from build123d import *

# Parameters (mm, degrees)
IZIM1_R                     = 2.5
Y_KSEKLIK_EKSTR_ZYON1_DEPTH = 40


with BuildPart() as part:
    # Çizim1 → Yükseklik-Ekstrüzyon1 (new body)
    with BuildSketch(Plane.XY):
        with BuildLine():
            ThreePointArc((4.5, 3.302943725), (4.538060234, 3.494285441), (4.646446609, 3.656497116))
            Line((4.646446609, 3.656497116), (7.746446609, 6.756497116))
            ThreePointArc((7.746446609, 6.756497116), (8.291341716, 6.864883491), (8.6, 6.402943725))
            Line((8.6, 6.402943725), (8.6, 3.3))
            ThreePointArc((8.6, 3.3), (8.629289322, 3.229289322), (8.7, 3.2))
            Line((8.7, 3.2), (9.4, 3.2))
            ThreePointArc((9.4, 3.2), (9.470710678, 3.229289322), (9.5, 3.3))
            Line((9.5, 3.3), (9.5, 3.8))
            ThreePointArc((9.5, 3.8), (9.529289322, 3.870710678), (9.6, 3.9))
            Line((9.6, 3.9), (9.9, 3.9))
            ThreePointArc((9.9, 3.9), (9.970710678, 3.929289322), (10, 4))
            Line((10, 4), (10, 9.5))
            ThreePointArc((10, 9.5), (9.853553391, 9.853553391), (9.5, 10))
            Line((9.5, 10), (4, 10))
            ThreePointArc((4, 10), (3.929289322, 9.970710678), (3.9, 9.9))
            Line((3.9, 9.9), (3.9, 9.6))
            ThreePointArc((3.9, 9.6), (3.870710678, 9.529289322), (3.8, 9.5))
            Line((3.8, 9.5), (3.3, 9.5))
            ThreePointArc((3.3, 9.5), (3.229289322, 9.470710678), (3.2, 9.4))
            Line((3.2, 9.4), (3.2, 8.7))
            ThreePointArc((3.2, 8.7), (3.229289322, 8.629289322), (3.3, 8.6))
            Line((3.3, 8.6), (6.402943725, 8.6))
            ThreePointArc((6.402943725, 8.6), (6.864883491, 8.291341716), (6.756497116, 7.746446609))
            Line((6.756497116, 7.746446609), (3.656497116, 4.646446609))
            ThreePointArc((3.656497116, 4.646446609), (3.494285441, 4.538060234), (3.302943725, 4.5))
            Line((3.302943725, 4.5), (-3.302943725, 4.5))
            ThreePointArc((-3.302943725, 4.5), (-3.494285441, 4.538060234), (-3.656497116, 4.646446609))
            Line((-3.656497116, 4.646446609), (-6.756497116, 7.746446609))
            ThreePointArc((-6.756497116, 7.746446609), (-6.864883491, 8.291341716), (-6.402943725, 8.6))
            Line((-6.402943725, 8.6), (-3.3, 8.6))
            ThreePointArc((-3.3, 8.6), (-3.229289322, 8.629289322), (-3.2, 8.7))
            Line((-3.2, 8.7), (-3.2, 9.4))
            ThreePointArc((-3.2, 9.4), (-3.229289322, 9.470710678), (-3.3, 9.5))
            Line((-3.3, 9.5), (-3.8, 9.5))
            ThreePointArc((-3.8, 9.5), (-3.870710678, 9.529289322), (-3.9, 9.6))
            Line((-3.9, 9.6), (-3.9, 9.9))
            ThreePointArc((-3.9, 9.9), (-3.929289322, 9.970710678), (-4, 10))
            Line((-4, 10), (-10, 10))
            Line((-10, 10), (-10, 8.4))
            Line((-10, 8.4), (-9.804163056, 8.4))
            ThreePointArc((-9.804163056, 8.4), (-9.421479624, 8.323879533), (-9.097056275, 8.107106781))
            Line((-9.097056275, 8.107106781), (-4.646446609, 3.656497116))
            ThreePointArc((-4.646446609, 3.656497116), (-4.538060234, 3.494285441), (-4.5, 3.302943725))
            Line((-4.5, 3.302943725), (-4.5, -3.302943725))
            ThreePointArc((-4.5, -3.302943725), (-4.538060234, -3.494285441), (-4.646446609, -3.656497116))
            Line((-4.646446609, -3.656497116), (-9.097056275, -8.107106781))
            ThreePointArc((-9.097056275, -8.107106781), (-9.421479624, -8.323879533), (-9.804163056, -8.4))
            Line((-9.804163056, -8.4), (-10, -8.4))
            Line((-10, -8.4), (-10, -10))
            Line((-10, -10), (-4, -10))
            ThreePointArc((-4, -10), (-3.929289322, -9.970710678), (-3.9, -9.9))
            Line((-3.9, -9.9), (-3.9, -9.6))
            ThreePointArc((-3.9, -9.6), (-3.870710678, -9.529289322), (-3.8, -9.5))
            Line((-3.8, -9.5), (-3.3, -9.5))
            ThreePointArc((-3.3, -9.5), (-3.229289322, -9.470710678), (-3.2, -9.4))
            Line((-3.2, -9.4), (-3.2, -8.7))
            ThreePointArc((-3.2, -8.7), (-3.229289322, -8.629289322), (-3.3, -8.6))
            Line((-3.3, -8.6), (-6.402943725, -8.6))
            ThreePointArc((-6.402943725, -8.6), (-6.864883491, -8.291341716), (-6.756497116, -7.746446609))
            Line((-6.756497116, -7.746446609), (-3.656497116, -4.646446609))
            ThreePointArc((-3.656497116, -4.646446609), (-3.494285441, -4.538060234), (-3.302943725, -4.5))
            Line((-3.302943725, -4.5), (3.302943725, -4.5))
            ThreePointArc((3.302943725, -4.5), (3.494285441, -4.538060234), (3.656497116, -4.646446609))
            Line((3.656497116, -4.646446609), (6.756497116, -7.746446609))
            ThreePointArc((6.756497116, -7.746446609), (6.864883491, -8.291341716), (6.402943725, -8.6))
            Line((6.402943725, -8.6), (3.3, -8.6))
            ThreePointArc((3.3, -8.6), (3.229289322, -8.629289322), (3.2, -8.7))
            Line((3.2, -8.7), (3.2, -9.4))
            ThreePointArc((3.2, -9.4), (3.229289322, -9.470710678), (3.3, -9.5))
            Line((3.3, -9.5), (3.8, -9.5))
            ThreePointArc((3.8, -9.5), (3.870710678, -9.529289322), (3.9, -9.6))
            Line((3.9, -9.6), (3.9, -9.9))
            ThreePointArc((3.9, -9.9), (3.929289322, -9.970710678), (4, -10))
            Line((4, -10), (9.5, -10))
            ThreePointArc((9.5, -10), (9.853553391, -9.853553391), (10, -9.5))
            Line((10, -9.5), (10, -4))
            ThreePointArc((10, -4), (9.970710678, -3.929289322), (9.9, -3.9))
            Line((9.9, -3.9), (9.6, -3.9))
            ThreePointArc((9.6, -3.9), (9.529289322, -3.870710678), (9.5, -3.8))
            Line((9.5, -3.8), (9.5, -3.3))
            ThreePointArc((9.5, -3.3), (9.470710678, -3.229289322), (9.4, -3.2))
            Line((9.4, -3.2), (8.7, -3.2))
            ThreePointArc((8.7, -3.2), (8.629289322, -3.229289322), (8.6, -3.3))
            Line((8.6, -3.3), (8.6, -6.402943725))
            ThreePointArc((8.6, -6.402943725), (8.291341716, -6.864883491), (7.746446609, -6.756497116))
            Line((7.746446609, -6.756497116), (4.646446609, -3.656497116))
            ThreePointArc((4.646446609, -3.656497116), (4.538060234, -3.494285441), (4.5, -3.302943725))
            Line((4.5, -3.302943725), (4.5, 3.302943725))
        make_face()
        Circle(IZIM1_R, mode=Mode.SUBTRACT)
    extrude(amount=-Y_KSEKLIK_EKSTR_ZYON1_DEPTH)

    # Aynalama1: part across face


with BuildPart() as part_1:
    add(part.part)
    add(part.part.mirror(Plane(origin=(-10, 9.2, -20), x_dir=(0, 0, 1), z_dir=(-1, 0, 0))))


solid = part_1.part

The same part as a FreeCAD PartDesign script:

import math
import FreeCAD as App
import Part
import Sketcher
from FreeCAD import Vector
Q = App.Units.Quantity

doc = App.newDocument("Part")
body = doc.addObject("PartDesign::Body", "Body")

sketch1 = body.newObject("Sketcher::SketchObject", "Sketch")
sketch1.AttachmentSupport = (doc.getObject("XY_Plane"), [""])
sketch1.MapMode = "FlatFace"
sketch1.addGeometry(Part.ArcOfCircle(Part.Circle(Vector(5, 3.3, 0), Vector(0, 0, 1), 0.5), math.radians(135), math.radians(180)), False)
sketch1.addGeometry(Part.LineSegment(Vector(4.65, 3.66, 0), Vector(7.75, 6.76, 0)), False)
sketch1.addGeometry(Part.ArcOfCircle(Part.Circle(Vector(8.1, 6.4, 0), Vector(0, 0, 1), 0.5), math.radians(0), math.radians(135)), False)
sketch1.addGeometry(Part.LineSegment(Vector(8.6, 6.4, 0), Vector(8.6, 3.3, 0)), False)
sketch1.addGeometry(Part.ArcOfCircle(Part.Circle(Vector(8.7, 3.3, 0), Vector(0, 0, 1), 0.1), math.radians(180), math.radians(270)), False)
sketch1.addGeometry(Part.LineSegment(Vector(8.7, 3.2, 0), Vector(9.4, 3.2, 0)), False)
sketch1.addGeometry(Part.ArcOfCircle(Part.Circle(Vector(9.4, 3.3, 0), Vector(0, 0, 1), 0.1), math.radians(-90), math.radians(0)), False)
sketch1.addGeometry(Part.LineSegment(Vector(9.5, 3.3, 0), Vector(9.5, 3.8, 0)), False)
sketch1.addGeometry(Part.ArcOfCircle(Part.Circle(Vector(9.6, 3.8, 0), Vector(0, 0, 1), 0.1), math.radians(90), math.radians(180)), False)
sketch1.addGeometry(Part.LineSegment(Vector(9.6, 3.9, 0), Vector(9.9, 3.9, 0)), False)
sketch1.addGeometry(Part.ArcOfCircle(Part.Circle(Vector(9.9, 4, 0), Vector(0, 0, 1), 0.1), math.radians(-90), math.radians(0)), False)
sketch1.addGeometry(Part.LineSegment(Vector(10, 4, 0), Vector(10, 9.5, 0)), False)
sketch1.addGeometry(Part.ArcOfCircle(Part.Circle(Vector(9.5, 9.5, 0), Vector(0, 0, 1), 0.5), math.radians(0), math.radians(90)), False)
sketch1.addGeometry(Part.LineSegment(Vector(9.5, 10, 0), Vector(4, 10, 0)), False)
sketch1.addGeometry(Part.ArcOfCircle(Part.Circle(Vector(4, 9.9, 0), Vector(0, 0, 1), 0.1), math.radians(90), math.radians(180)), False)
sketch1.addGeometry(Part.LineSegment(Vector(3.9, 9.9, 0), Vector(3.9, 9.6, 0)), False)
sketch1.addGeometry(Part.ArcOfCircle(Part.Circle(Vector(3.8, 9.6, 0), Vector(0, 0, 1), 0.1), math.radians(-90), math.radians(0)), False)
sketch1.addGeometry(Part.LineSegment(Vector(3.8, 9.5, 0), Vector(3.3, 9.5, 0)), False)
sketch1.addGeometry(Part.ArcOfCircle(Part.Circle(Vector(3.3, 9.4, 0), Vector(0, 0, 1), 0.1), math.radians(90), math.radians(180)), False)
sketch1.addGeometry(Part.LineSegment(Vector(3.2, 9.4, 0), Vector(3.2, 8.7, 0)), False)
sketch1.addGeometry(Part.ArcOfCircle(Part.Circle(Vector(3.3, 8.7, 0), Vector(0, 0, 1), 0.1), math.radians(180), math.radians(270)), False)
sketch1.addGeometry(Part.LineSegment(Vector(3.3, 8.6, 0), Vector(6.4, 8.6, 0)), False)
sketch1.addGeometry(Part.ArcOfCircle(Part.Circle(Vector(6.4, 8.1, 0), Vector(0, 0, 1), 0.5), math.radians(-45), math.radians(90)), False)
sketch1.addGeometry(Part.LineSegment(Vector(6.76, 7.75, 0), Vector(3.66, 4.65, 0)), False)
sketch1.addGeometry(Part.ArcOfCircle(Part.Circle(Vector(3.3, 5, 0), Vector(0, 0, 1), 0.5), math.radians(-90), math.radians(-45)), False)
sketch1.addGeometry(Part.LineSegment(Vector(3.3, 4.5, 0), Vector(-3.3, 4.5, 0)), False)
sketch1.addGeometry(Part.ArcOfCircle(Part.Circle(Vector(-3.3, 5, 0), Vector(0, 0, 1), 0.5), math.radians(-135), math.radians(-90)), False)
sketch1.addGeometry(Part.LineSegment(Vector(-3.66, 4.65, 0), Vector(-6.76, 7.75, 0)), False)
sketch1.addGeometry(Part.ArcOfCircle(Part.Circle(Vector(-6.4, 8.1, 0), Vector(0, 0, 1), 0.5), math.radians(90), math.radians(225)), False)
sketch1.addGeometry(Part.LineSegment(Vector(-6.4, 8.6, 0), Vector(-3.3, 8.6, 0)), False)
sketch1.addGeometry(Part.ArcOfCircle(Part.Circle(Vector(-3.3, 8.7, 0), Vector(0, 0, 1), 0.1), math.radians(-90), math.radians(0)), False)
sketch1.addGeometry(Part.LineSegment(Vector(-3.2, 8.7, 0), Vector(-3.2, 9.4, 0)), False)
sketch1.addGeometry(Part.ArcOfCircle(Part.Circle(Vector(-3.3, 9.4, 0), Vector(0, 0, 1), 0.1), math.radians(0), math.radians(90)), False)
sketch1.addGeometry(Part.LineSegment(Vector(-3.3, 9.5, 0), Vector(-3.8, 9.5, 0)), False)
sketch1.addGeometry(Part.ArcOfCircle(Part.Circle(Vector(-3.8, 9.6, 0), Vector(0, 0, 1), 0.1), math.radians(180), math.radians(270)), False)
sketch1.addGeometry(Part.LineSegment(Vector(-3.9, 9.6, 0), Vector(-3.9, 9.9, 0)), False)
sketch1.addGeometry(Part.ArcOfCircle(Part.Circle(Vector(-4, 9.9, 0), Vector(0, 0, 1), 0.1), math.radians(0), math.radians(90)), False)
sketch1.addGeometry(Part.LineSegment(Vector(-4, 10, 0), Vector(-10, 10, 0)), False)
sketch1.addGeometry(Part.LineSegment(Vector(-10, 10, 0), Vector(-10, 8.4, 0)), False)
sketch1.addGeometry(Part.LineSegment(Vector(-10, 8.4, 0), Vector(-9.8, 8.4, 0)), False)
sketch1.addGeometry(Part.ArcOfCircle(Part.Circle(Vector(-9.8, 7.4, 0), Vector(0, 0, 1), 1), math.radians(45), math.radians(90)), False)
sketch1.addGeometry(Part.LineSegment(Vector(-9.1, 8.11, 0), Vector(-4.65, 3.66, 0)), False)
sketch1.addGeometry(Part.ArcOfCircle(Part.Circle(Vector(-5, 3.3, 0), Vector(0, 0, 1), 0.5), math.radians(0), math.radians(45)), False)
sketch1.addGeometry(Part.LineSegment(Vector(-4.5, 3.3, 0), Vector(-4.5, -3.3, 0)), False)
sketch1.addGeometry(Part.ArcOfCircle(Part.Circle(Vector(-5, -3.3, 0), Vector(0, 0, 1), 0.5), math.radians(-45), math.radians(0)), False)
sketch1.addGeometry(Part.LineSegment(Vector(-4.65, -3.66, 0), Vector(-9.1, -8.11, 0)), False)
sketch1.addGeometry(Part.ArcOfCircle(Part.Circle(Vector(-9.8, -7.4, 0), Vector(0, 0, 1), 1), math.radians(-90), math.radians(-45)), False)
sketch1.addGeometry(Part.LineSegment(Vector(-9.8, -8.4, 0), Vector(-10, -8.4, 0)), False)
sketch1.addGeometry(Part.LineSegment(Vector(-10, -8.4, 0), Vector(-10, -10, 0)), False)
sketch1.addGeometry(Part.LineSegment(Vector(-10, -10, 0), Vector(-4, -10, 0)), False)
sketch1.addGeometry(Part.ArcOfCircle(Part.Circle(Vector(-4, -9.9, 0), Vector(0, 0, 1), 0.1), math.radians(-90), math.radians(0)), False)
sketch1.addGeometry(Part.LineSegment(Vector(-3.9, -9.9, 0), Vector(-3.9, -9.6, 0)), False)
sketch1.addGeometry(Part.ArcOfCircle(Part.Circle(Vector(-3.8, -9.6, 0), Vector(0, 0, 1), 0.1), math.radians(90), math.radians(180)), False)
sketch1.addGeometry(Part.LineSegment(Vector(-3.8, -9.5, 0), Vector(-3.3, -9.5, 0)), False)
sketch1.addGeometry(Part.ArcOfCircle(Part.Circle(Vector(-3.3, -9.4, 0), Vector(0, 0, 1), 0.1), math.radians(-90), math.radians(0)), False)
sketch1.addGeometry(Part.LineSegment(Vector(-3.2, -9.4, 0), Vector(-3.2, -8.7, 0)), False)
sketch1.addGeometry(Part.ArcOfCircle(Part.Circle(Vector(-3.3, -8.7, 0), Vector(0, 0, 1), 0.1), math.radians(0), math.radians(90)), False)
sketch1.addGeometry(Part.LineSegment(Vector(-3.3, -8.6, 0), Vector(-6.4, -8.6, 0)), False)
sketch1.addGeometry(Part.ArcOfCircle(Part.Circle(Vector(-6.4, -8.1, 0), Vector(0, 0, 1), 0.5), math.radians(135), math.radians(270)), False)
sketch1.addGeometry(Part.LineSegment(Vector(-6.76, -7.75, 0), Vector(-3.66, -4.65, 0)), False)
sketch1.addGeometry(Part.ArcOfCircle(Part.Circle(Vector(-3.3, -5, 0), Vector(0, 0, 1), 0.5), math.radians(90), math.radians(135)), False)
sketch1.addGeometry(Part.LineSegment(Vector(-3.3, -4.5, 0), Vector(3.3, -4.5, 0)), False)
sketch1.addGeometry(Part.ArcOfCircle(Part.Circle(Vector(3.3, -5, 0), Vector(0, 0, 1), 0.5), math.radians(45), math.radians(90)), False)
sketch1.addGeometry(Part.LineSegment(Vector(3.66, -4.65, 0), Vector(6.76, -7.75, 0)), False)
sketch1.addGeometry(Part.ArcOfCircle(Part.Circle(Vector(6.4, -8.1, 0), Vector(0, 0, 1), 0.5), math.radians(-90), math.radians(45)), False)
sketch1.addGeometry(Part.LineSegment(Vector(6.4, -8.6, 0), Vector(3.3, -8.6, 0)), False)
sketch1.addGeometry(Part.ArcOfCircle(Part.Circle(Vector(3.3, -8.7, 0), Vector(0, 0, 1), 0.1), math.radians(90), math.radians(180)), False)
sketch1.addGeometry(Part.LineSegment(Vector(3.2, -8.7, 0), Vector(3.2, -9.4, 0)), False)
sketch1.addGeometry(Part.ArcOfCircle(Part.Circle(Vector(3.3, -9.4, 0), Vector(0, 0, 1), 0.1), math.radians(180), math.radians(270)), False)
sketch1.addGeometry(Part.LineSegment(Vector(3.3, -9.5, 0), Vector(3.8, -9.5, 0)), False)
sketch1.addGeometry(Part.ArcOfCircle(Part.Circle(Vector(3.8, -9.6, 0), Vector(0, 0, 1), 0.1), math.radians(0), math.radians(90)), False)
sketch1.addGeometry(Part.LineSegment(Vector(3.9, -9.6, 0), Vector(3.9, -9.9, 0)), False)
sketch1.addGeometry(Part.ArcOfCircle(Part.Circle(Vector(4, -9.9, 0), Vector(0, 0, 1), 0.1), math.radians(180), math.radians(270)), False)
sketch1.addGeometry(Part.LineSegment(Vector(4, -10, 0), Vector(9.5, -10, 0)), False)
sketch1.addGeometry(Part.ArcOfCircle(Part.Circle(Vector(9.5, -9.5, 0), Vector(0, 0, 1), 0.5), math.radians(-90), math.radians(0)), False)
sketch1.addGeometry(Part.LineSegment(Vector(10, -9.5, 0), Vector(10, -4, 0)), False)
sketch1.addGeometry(Part.ArcOfCircle(Part.Circle(Vector(9.9, -4, 0), Vector(0, 0, 1), 0.1), math.radians(0), math.radians(90)), False)
sketch1.addGeometry(Part.LineSegment(Vector(9.9, -3.9, 0), Vector(9.6, -3.9, 0)), False)
sketch1.addGeometry(Part.ArcOfCircle(Part.Circle(Vector(9.6, -3.8, 0), Vector(0, 0, 1), 0.1), math.radians(180), math.radians(270)), False)
sketch1.addGeometry(Part.LineSegment(Vector(9.5, -3.8, 0), Vector(9.5, -3.3, 0)), False)
sketch1.addGeometry(Part.ArcOfCircle(Part.Circle(Vector(9.4, -3.3, 0), Vector(0, 0, 1), 0.1), math.radians(0), math.radians(90)), False)
sketch1.addGeometry(Part.LineSegment(Vector(9.4, -3.2, 0), Vector(8.7, -3.2, 0)), False)
sketch1.addGeometry(Part.ArcOfCircle(Part.Circle(Vector(8.7, -3.3, 0), Vector(0, 0, 1), 0.1), math.radians(90), math.radians(180)), False)
sketch1.addGeometry(Part.LineSegment(Vector(8.6, -3.3, 0), Vector(8.6, -6.4, 0)), False)
sketch1.addGeometry(Part.ArcOfCircle(Part.Circle(Vector(8.1, -6.4, 0), Vector(0, 0, 1), 0.5), math.radians(-135), math.radians(0)), False)
sketch1.addGeometry(Part.LineSegment(Vector(7.75, -6.76, 0), Vector(4.65, -3.66, 0)), False)
sketch1.addGeometry(Part.ArcOfCircle(Part.Circle(Vector(5, -3.3, 0), Vector(0, 0, 1), 0.5), math.radians(-180), math.radians(-135)), False)
sketch1.addGeometry(Part.LineSegment(Vector(4.5, -3.3, 0), Vector(4.5, 3.3, 0)), False)
sketch1.addGeometry(Part.Circle(Vector(0, 0, 0), Vector(0, 0, 1), 2.5), False)
sketch1.addConstraint(Sketcher.Constraint("Tangent", 0, 1, 1, 1))
sketch1.addConstraint(Sketcher.Constraint("Tangent", 1, 2, 2, 2))
sketch1.addConstraint(Sketcher.Constraint("Tangent", 2, 1, 3, 1))
sketch1.addConstraint(Sketcher.Constraint("Tangent", 3, 2, 4, 1))
sketch1.addConstraint(Sketcher.Constraint("Tangent", 4, 2, 5, 1))
sketch1.addConstraint(Sketcher.Constraint("Tangent", 5, 2, 6, 1))
sketch1.addConstraint(Sketcher.Constraint("Tangent", 6, 2, 7, 1))
sketch1.addConstraint(Sketcher.Constraint("Tangent", 7, 2, 8, 2))
sketch1.addConstraint(Sketcher.Constraint("Tangent", 8, 1, 9, 1))
sketch1.addConstraint(Sketcher.Constraint("Tangent", 9, 2, 10, 1))
sketch1.addConstraint(Sketcher.Constraint("Tangent", 10, 2, 11, 1))
sketch1.addConstraint(Sketcher.Constraint("Tangent", 11, 2, 12, 1))
sketch1.addConstraint(Sketcher.Constraint("Tangent", 12, 2, 13, 1))
sketch1.addConstraint(Sketcher.Constraint("Tangent", 13, 2, 14, 1))
sketch1.addConstraint(Sketcher.Constraint("Tangent", 14, 2, 15, 1))
sketch1.addConstraint(Sketcher.Constraint("Tangent", 15, 2, 16, 2))
sketch1.addConstraint(Sketcher.Constraint("Tangent", 16, 1, 17, 1))
sketch1.addConstraint(Sketcher.Constraint("Tangent", 17, 2, 18, 1))
sketch1.addConstraint(Sketcher.Constraint("Tangent", 18, 2, 19, 1))
sketch1.addConstraint(Sketcher.Constraint("Tangent", 19, 2, 20, 1))
sketch1.addConstraint(Sketcher.Constraint("Tangent", 20, 2, 21, 1))
sketch1.addConstraint(Sketcher.Constraint("Tangent", 21, 2, 22, 2))
sketch1.addConstraint(Sketcher.Constraint("Tangent", 22, 1, 23, 1))
sketch1.addConstraint(Sketcher.Constraint("Tangent", 23, 2, 24, 2))
sketch1.addConstraint(Sketcher.Constraint("Tangent", 24, 1, 25, 1))
sketch1.addConstraint(Sketcher.Constraint("Tangent", 25, 2, 26, 2))
sketch1.addConstraint(Sketcher.Constraint("Tangent", 26, 1, 27, 1))
sketch1.addConstraint(Sketcher.Constraint("Tangent", 27, 2, 28, 2))
sketch1.addConstraint(Sketcher.Constraint("Tangent", 28, 1, 29, 1))
sketch1.addConstraint(Sketcher.Constraint("Tangent", 29, 2, 30, 1))
sketch1.addConstraint(Sketcher.Constraint("Tangent", 30, 2, 31, 1))
sketch1.addConstraint(Sketcher.Constraint("Tangent", 31, 2, 32, 1))
sketch1.addConstraint(Sketcher.Constraint("Tangent", 32, 2, 33, 1))
sketch1.addConstraint(Sketcher.Constraint("Tangent", 33, 2, 34, 2))
sketch1.addConstraint(Sketcher.Constraint("Tangent", 34, 1, 35, 1))
sketch1.addConstraint(Sketcher.Constraint("Tangent", 35, 2, 36, 1))
sketch1.addConstraint(Sketcher.Constraint("Tangent", 36, 2, 37, 1))
sketch1.addConstraint(Sketcher.Constraint("Coincident", 37, 2, 38, 1))
sketch1.addConstraint(Sketcher.Constraint("Coincident", 38, 2, 39, 1))
sketch1.addConstraint(Sketcher.Constraint("Tangent", 39, 2, 40, 2))
sketch1.addConstraint(Sketcher.Constraint("Tangent", 40, 1, 41, 1))
sketch1.addConstraint(Sketcher.Constraint("Tangent", 41, 2, 42, 2))
sketch1.addConstraint(Sketcher.Constraint("Tangent", 42, 1, 43, 1))
sketch1.addConstraint(Sketcher.Constraint("Tangent", 43, 2, 44, 2))
sketch1.addConstraint(Sketcher.Constraint("Tangent", 44, 1, 45, 1))
sketch1.addConstraint(Sketcher.Constraint("Tangent", 45, 2, 46, 2))
sketch1.addConstraint(Sketcher.Constraint("Tangent", 46, 1, 47, 1))
sketch1.addConstraint(Sketcher.Constraint("Coincident", 47, 2, 48, 1))
sketch1.addConstraint(Sketcher.Constraint("Coincident", 48, 2, 49, 1))
sketch1.addConstraint(Sketcher.Constraint("Tangent", 49, 2, 50, 1))
sketch1.addConstraint(Sketcher.Constraint("Tangent", 50, 2, 51, 1))
sketch1.addConstraint(Sketcher.Constraint("Tangent", 51, 2, 52, 2))
sketch1.addConstraint(Sketcher.Constraint("Tangent", 52, 1, 53, 1))
sketch1.addConstraint(Sketcher.Constraint("Tangent", 53, 2, 54, 1))
sketch1.addConstraint(Sketcher.Constraint("Tangent", 54, 2, 55, 1))
sketch1.addConstraint(Sketcher.Constraint("Tangent", 55, 2, 56, 1))
sketch1.addConstraint(Sketcher.Constraint("Tangent", 56, 2, 57, 1))
sketch1.addConstraint(Sketcher.Constraint("Tangent", 57, 2, 58, 2))
sketch1.addConstraint(Sketcher.Constraint("Tangent", 58, 1, 59, 1))
sketch1.addConstraint(Sketcher.Constraint("Tangent", 59, 2, 60, 2))
sketch1.addConstraint(Sketcher.Constraint("Tangent", 60, 1, 61, 1))
sketch1.addConstraint(Sketcher.Constraint("Tangent", 61, 2, 62, 2))
sketch1.addConstraint(Sketcher.Constraint("Tangent", 62, 1, 63, 1))
sketch1.addConstraint(Sketcher.Constraint("Tangent", 63, 2, 64, 2))
sketch1.addConstraint(Sketcher.Constraint("Tangent", 64, 1, 65, 1))
sketch1.addConstraint(Sketcher.Constraint("Tangent", 65, 2, 66, 1))
sketch1.addConstraint(Sketcher.Constraint("Tangent", 66, 2, 67, 1))
sketch1.addConstraint(Sketcher.Constraint("Tangent", 67, 2, 68, 1))
sketch1.addConstraint(Sketcher.Constraint("Tangent", 68, 2, 69, 1))
sketch1.addConstraint(Sketcher.Constraint("Tangent", 69, 2, 70, 2))
sketch1.addConstraint(Sketcher.Constraint("Tangent", 70, 1, 71, 1))
sketch1.addConstraint(Sketcher.Constraint("Tangent", 71, 2, 72, 1))
sketch1.addConstraint(Sketcher.Constraint("Tangent", 72, 2, 73, 1))
sketch1.addConstraint(Sketcher.Constraint("Tangent", 73, 2, 74, 1))
sketch1.addConstraint(Sketcher.Constraint("Tangent", 74, 2, 75, 1))
sketch1.addConstraint(Sketcher.Constraint("Tangent", 75, 2, 76, 1))
sketch1.addConstraint(Sketcher.Constraint("Tangent", 76, 2, 77, 1))
sketch1.addConstraint(Sketcher.Constraint("Tangent", 77, 2, 78, 2))
sketch1.addConstraint(Sketcher.Constraint("Tangent", 78, 1, 79, 1))
sketch1.addConstraint(Sketcher.Constraint("Tangent", 79, 2, 80, 1))
sketch1.addConstraint(Sketcher.Constraint("Tangent", 80, 2, 81, 1))
sketch1.addConstraint(Sketcher.Constraint("Tangent", 81, 2, 82, 1))
sketch1.addConstraint(Sketcher.Constraint("Tangent", 82, 2, 83, 1))
sketch1.addConstraint(Sketcher.Constraint("Tangent", 83, 2, 84, 2))
sketch1.addConstraint(Sketcher.Constraint("Tangent", 84, 1, 85, 1))
sketch1.addConstraint(Sketcher.Constraint("Tangent", 85, 2, 86, 2))
sketch1.addConstraint(Sketcher.Constraint("Tangent", 86, 1, 87, 1))
sketch1.addConstraint(Sketcher.Constraint("Tangent", 87, 2, 0, 2))
sketch1.addConstraint(Sketcher.Constraint("Vertical", 3))
sketch1.addConstraint(Sketcher.Constraint("Horizontal", 5))
sketch1.addConstraint(Sketcher.Constraint("Vertical", 7))
sketch1.addConstraint(Sketcher.Constraint("Horizontal", 9))
sketch1.addConstraint(Sketcher.Constraint("Vertical", 11))
sketch1.addConstraint(Sketcher.Constraint("Horizontal", 13))
sketch1.addConstraint(Sketcher.Constraint("Vertical", 15))
sketch1.addConstraint(Sketcher.Constraint("Horizontal", 17))
sketch1.addConstraint(Sketcher.Constraint("Vertical", 19))
sketch1.addConstraint(Sketcher.Constraint("Horizontal", 21))
sketch1.addConstraint(Sketcher.Constraint("Horizontal", 25))
sketch1.addConstraint(Sketcher.Constraint("Horizontal", 29))
sketch1.addConstraint(Sketcher.Constraint("Vertical", 31))
sketch1.addConstraint(Sketcher.Constraint("Horizontal", 33))
sketch1.addConstraint(Sketcher.Constraint("Vertical", 35))
sketch1.addConstraint(Sketcher.Constraint("Horizontal", 37))
sketch1.addConstraint(Sketcher.Constraint("Vertical", 38))
sketch1.addConstraint(Sketcher.Constraint("Horizontal", 39))
sketch1.addConstraint(Sketcher.Constraint("Vertical", 43))
sketch1.addConstraint(Sketcher.Constraint("Horizontal", 47))
sketch1.addConstraint(Sketcher.Constraint("Vertical", 48))
sketch1.addConstraint(Sketcher.Constraint("Horizontal", 49))
sketch1.addConstraint(Sketcher.Constraint("Vertical", 51))
sketch1.addConstraint(Sketcher.Constraint("Horizontal", 53))
sketch1.addConstraint(Sketcher.Constraint("Vertical", 55))
sketch1.addConstraint(Sketcher.Constraint("Horizontal", 57))
sketch1.addConstraint(Sketcher.Constraint("Horizontal", 61))
sketch1.addConstraint(Sketcher.Constraint("Horizontal", 65))
sketch1.addConstraint(Sketcher.Constraint("Vertical", 67))
sketch1.addConstraint(Sketcher.Constraint("Horizontal", 69))
sketch1.addConstraint(Sketcher.Constraint("Vertical", 71))
sketch1.addConstraint(Sketcher.Constraint("Horizontal", 73))
sketch1.addConstraint(Sketcher.Constraint("Vertical", 75))
sketch1.addConstraint(Sketcher.Constraint("Horizontal", 77))
sketch1.addConstraint(Sketcher.Constraint("Vertical", 79))
sketch1.addConstraint(Sketcher.Constraint("Horizontal", 81))
sketch1.addConstraint(Sketcher.Constraint("Vertical", 83))
sketch1.addConstraint(Sketcher.Constraint("Vertical", 87))
sketch1.addConstraint(Sketcher.Constraint("Coincident", 88, 3, -1, 1))
sketch1.addConstraint(Sketcher.Constraint("Equal", 0, 2))
sketch1.addConstraint(Sketcher.Constraint("Equal", 4, 6))
sketch1.addConstraint(Sketcher.Constraint("Equal", 6, 8))
sketch1.addConstraint(Sketcher.Constraint("Equal", 8, 10))
sketch1.addConstraint(Sketcher.Constraint("Equal", 2, 12))
sketch1.addConstraint(Sketcher.Constraint("Equal", 10, 14))
sketch1.addConstraint(Sketcher.Constraint("Equal", 14, 16))
sketch1.addConstraint(Sketcher.Constraint("Equal", 16, 18))
sketch1.addConstraint(Sketcher.Constraint("Equal", 18, 20))
sketch1.addConstraint(Sketcher.Constraint("Equal", 12, 22))
sketch1.addConstraint(Sketcher.Constraint("Equal", 22, 24))
sketch1.addConstraint(Sketcher.Constraint("Equal", 24, 26))
sketch1.addConstraint(Sketcher.Constraint("Equal", 26, 28))
sketch1.addConstraint(Sketcher.Constraint("Equal", 20, 30))
sketch1.addConstraint(Sketcher.Constraint("Equal", 30, 32))
sketch1.addConstraint(Sketcher.Constraint("Equal", 32, 34))
sketch1.addConstraint(Sketcher.Constraint("Equal", 34, 36))
sketch1.addConstraint(Sketcher.Constraint("Equal", 28, 42))
sketch1.addConstraint(Sketcher.Constraint("Equal", 42, 44))
sketch1.addConstraint(Sketcher.Constraint("Equal", 40, 46))
sketch1.addConstraint(Sketcher.Constraint("Equal", 36, 50))
sketch1.addConstraint(Sketcher.Constraint("Equal", 50, 52))
sketch1.addConstraint(Sketcher.Constraint("Equal", 52, 54))
sketch1.addConstraint(Sketcher.Constraint("Equal", 54, 56))
sketch1.addConstraint(Sketcher.Constraint("Equal", 44, 58))
sketch1.addConstraint(Sketcher.Constraint("Equal", 58, 60))
sketch1.addConstraint(Sketcher.Constraint("Equal", 60, 62))
sketch1.addConstraint(Sketcher.Constraint("Equal", 62, 64))
sketch1.addConstraint(Sketcher.Constraint("Equal", 56, 66))
sketch1.addConstraint(Sketcher.Constraint("Equal", 66, 68))
sketch1.addConstraint(Sketcher.Constraint("Equal", 68, 70))
sketch1.addConstraint(Sketcher.Constraint("Equal", 70, 72))
sketch1.addConstraint(Sketcher.Constraint("Equal", 64, 74))
sketch1.addConstraint(Sketcher.Constraint("Equal", 72, 76))
sketch1.addConstraint(Sketcher.Constraint("Equal", 76, 78))
sketch1.addConstraint(Sketcher.Constraint("Equal", 78, 80))
sketch1.addConstraint(Sketcher.Constraint("Equal", 80, 82))
sketch1.addConstraint(Sketcher.Constraint("Equal", 74, 84))
sketch1.addConstraint(Sketcher.Constraint("Equal", 84, 86))
sketch1.addConstraint(Sketcher.Constraint("Symmetric", 0, 3, 44, 3, -1, 1))
sketch1.addConstraint(Sketcher.Constraint("Symmetric", 14, 3, 50, 3, -1, 1))
sketch1.addConstraint(Sketcher.Constraint("Symmetric", 18, 3, 54, 3, -1, 1))
sketch1.addConstraint(Sketcher.Constraint("Symmetric", 22, 3, 58, 3, -1, 1))
sketch1.addConstraint(Sketcher.Constraint("Symmetric", 24, 3, 60, 3, -1, 1))
sketch1.addConstraint(Sketcher.Constraint("Symmetric", 28, 3, 64, 3, -1, 1))
sketch1.addConstraint(Sketcher.Constraint("Symmetric", 32, 3, 68, 3, -1, 1))
sketch1.addConstraint(Sketcher.Constraint("Symmetric", 36, 3, 72, 3, -1, 1))
sketch1.addConstraint(Sketcher.Constraint("Symmetric", 41, 2, 85, 2, -1, 1))
sketch1.addConstraint(Sketcher.Constraint("Symmetric", 22, 3, 28, 3, -2))
sketch1.addConstraint(Sketcher.Constraint("Symmetric", 18, 3, 32, 3, -2))
sketch1.addConstraint(Sketcher.Constraint("Symmetric", 14, 3, 36, 3, -2))
sketch1.addConstraint(Sketcher.Constraint("Symmetric", 0, 1, 41, 2, -2))
sketch1.addConstraint(Sketcher.Constraint("Symmetric", 40, 3, 46, 3, -1))
sketch1.addConstraint(Sketcher.Constraint("Symmetric", 10, 3, 76, 3, -1))
sketch1.addConstraint(Sketcher.Constraint("Symmetric", 6, 3, 80, 3, -1))
sketch1.addConstraint(Sketcher.Constraint("Parallel", 1, 23))
sketch1.addConstraint(Sketcher.Constraint("Perpendicular", 23, 27))
sketch1.addConstraint(Sketcher.Constraint("Parallel", 27, 41))
sketch1.addConstraint(Sketcher.Constraint("Perpendicular", 59, 63))
sketch1.addConstraint(Sketcher.Constraint("Horizontal", 11, 2, 16, 1))
sketch1.addConstraint(Sketcher.Constraint("Vertical", 4, 3, 82, 3))
sketch1.addConstraint(Sketcher.Constraint("Vertical", 74, 3, 6, 2))
sketch1.addConstraint(Sketcher.Constraint("Vertical", 38, 2, 47, 2))
sketch1.addConstraint(Sketcher.Constraint("Equal", 65, 3))
sketch1.addConstraint(Sketcher.Constraint("Equal", 69, 7))
sketch1.addConstraint(Sketcher.Constraint("Equal", 73, 11))
sketch1.addConstraint(Sketcher.Constraint("Equal", 81, 19))
sketch1.addConstraint(Sketcher.Constraint("Equal", 61, 43))
sketch1.addConstraint(Sketcher.Constraint("Equal", 1, 23))
sketch1.addConstraint(Sketcher.Constraint("Diameter", 88, Q("5 mm")))
sketch1.addConstraint(Sketcher.Constraint("Radius", 40, Q("1 mm")))
sketch1.addConstraint(Sketcher.Constraint("Radius", 0, Q("0.5 mm")))
sketch1.addConstraint(Sketcher.Constraint("Radius", 4, Q("0.1 mm")))
sketch1.addConstraint(Sketcher.Constraint("DistanceX", 37, 2, 37, 1, Q("6 mm")))
sketch1.addConstraint(Sketcher.Constraint("DistanceX", 5, 1, 5, 2, Q("0.7 mm")))
sketch1.addConstraint(Sketcher.Constraint("DistanceX", 13, 2, 13, 1, Q("5.5 mm")))
sketch1.addConstraint(Sketcher.Constraint("DistanceX", 17, 2, 17, 1, Q("0.5 mm")))
sketch1.addConstraint(Sketcher.Constraint("DistanceY", 38, 2, 38, 1, Q("1.6 mm")))
sketch1.addConstraint(Sketcher.Constraint("DistanceX", -1, 1, 0, 3, Q("5 mm")))
sketch1.addConstraint(Sketcher.Constraint("DistanceY", -1, 1, 10, 3, Q("4 mm")))
sketch1.addConstraint(Sketcher.Constraint("DistanceX", 21, 1, 21, 2, Q("3.102944 mm")))
pad1 = body.newObject("PartDesign::Pad", "Pad")
pad1.Profile = sketch1
pad1.Length = 40
pad1.Reversed = True
body2 = doc.addObject("PartDesign::Body", "Body001")
doc.recompute()

body2.BaseFeature = body
doc.recompute()

mirroring = doc.addObject("Part::Mirroring", "Mirroring")
mirroring.Source = body
mirroring.Base = Vector(-10, 9.2, -20)
mirroring.Normal = Vector(-1, 0, 0)
body3 = doc.addObject("PartDesign::Body", "Body002")
body3.BaseFeature = mirroring
boolean = body2.newObject("PartDesign::Boolean", "Boolean")
boolean.Type = "Fuse"
boolean.addObjects([body3])
doc.recompute()
mirroring.Visibility = False

doc.recompute()
